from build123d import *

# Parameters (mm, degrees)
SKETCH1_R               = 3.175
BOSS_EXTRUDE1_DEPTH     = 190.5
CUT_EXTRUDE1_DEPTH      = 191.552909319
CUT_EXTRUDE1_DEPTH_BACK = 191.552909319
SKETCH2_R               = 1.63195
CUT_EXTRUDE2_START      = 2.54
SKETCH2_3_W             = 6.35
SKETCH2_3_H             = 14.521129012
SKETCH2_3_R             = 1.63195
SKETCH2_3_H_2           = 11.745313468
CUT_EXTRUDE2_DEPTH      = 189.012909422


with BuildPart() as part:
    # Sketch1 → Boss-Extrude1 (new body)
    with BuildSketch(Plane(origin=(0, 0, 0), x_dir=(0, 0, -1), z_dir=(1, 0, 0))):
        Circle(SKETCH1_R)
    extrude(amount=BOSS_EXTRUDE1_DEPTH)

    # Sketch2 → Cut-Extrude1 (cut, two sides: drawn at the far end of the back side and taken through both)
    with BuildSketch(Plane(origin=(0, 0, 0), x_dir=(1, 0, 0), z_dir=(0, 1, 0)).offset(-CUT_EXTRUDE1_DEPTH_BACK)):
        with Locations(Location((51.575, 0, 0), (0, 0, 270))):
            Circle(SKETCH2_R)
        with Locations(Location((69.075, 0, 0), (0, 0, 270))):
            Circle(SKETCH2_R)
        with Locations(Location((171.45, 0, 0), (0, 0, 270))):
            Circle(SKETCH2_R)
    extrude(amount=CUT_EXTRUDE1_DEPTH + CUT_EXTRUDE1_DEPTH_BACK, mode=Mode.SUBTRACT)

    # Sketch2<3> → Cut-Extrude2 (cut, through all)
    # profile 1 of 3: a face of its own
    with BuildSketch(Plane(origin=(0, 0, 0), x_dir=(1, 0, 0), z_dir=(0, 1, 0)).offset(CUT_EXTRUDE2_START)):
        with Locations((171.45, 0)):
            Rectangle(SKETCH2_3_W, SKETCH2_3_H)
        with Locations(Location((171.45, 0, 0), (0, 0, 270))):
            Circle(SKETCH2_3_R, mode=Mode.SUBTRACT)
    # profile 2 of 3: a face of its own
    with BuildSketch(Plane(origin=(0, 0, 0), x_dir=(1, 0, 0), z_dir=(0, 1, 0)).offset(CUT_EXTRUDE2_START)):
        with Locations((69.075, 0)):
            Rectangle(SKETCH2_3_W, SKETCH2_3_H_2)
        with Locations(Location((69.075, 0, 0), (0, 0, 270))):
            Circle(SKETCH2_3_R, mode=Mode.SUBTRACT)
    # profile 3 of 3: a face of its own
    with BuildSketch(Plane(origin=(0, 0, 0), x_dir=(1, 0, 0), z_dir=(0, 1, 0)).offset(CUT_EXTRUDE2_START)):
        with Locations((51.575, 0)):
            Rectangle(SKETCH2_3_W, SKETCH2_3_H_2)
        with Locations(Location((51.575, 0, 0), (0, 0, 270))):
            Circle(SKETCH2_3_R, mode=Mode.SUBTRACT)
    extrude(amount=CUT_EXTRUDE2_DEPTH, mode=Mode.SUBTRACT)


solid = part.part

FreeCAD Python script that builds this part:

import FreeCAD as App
import Part
import Sketcher
from FreeCAD import Vector
Q = App.Units.Quantity


def add_polygon(sketch, points):
    """Adds a closed chain of lines whose ends are joined by coincident constraints."""
    first, n = sketch.GeometryCount, len(points)
    for a, b in zip(points, points[1:] + points[:1]):
        sketch.addGeometry(Part.LineSegment(App.Vector(*a, 0), App.Vector(*b, 0)), False)
    for i in range(n):
        sketch.addConstraint(Sketcher.Constraint("Coincident", first + i, 2, first + (i + 1) % n, 1))

doc = App.newDocument("Part")
body = doc.addObject("PartDesign::Body", "Body")

sketch1 = doc.addObject("Sketcher::SketchObject", "Sketch")
body.addObject(sketch1)
sketch1.AttachmentSupport = (doc.YZ_Plane, [""])
sketch1.MapMode = "FlatFace"
sketch1.addGeometry(Part.Circle(Vector(0, 0, 0), Vector(0, 0, 1), 3.2), False)
sketch1.addConstraint([
    Sketcher.Constraint("Coincident", 0, 3, -1, 1),
    Sketcher.Constraint("Diameter", 0, Q("0.25 in")),
])
pad1 = doc.addObject("PartDesign::Pad", "Pad")
body.addObject(pad1)
pad1.Profile = sketch1
pad1.Length = Q("7.5 in")

sketch2 = doc.addObject("Sketcher::SketchObject", "Sketch001")
body.addObject(sketch2)
sketch2.AttachmentSupport = (doc.XZ_Plane, [""])
sketch2.MapMode = "FlatFace"
sketch2.addGeometry([
    Part.Circle(Vector(51.6, 0, 0), Vector(0, 0, 1), 1.6),
    Part.Circle(Vector(69.1, 0, 0), Vector(0, 0, 1), 1.6),
    Part.Circle(Vector(171.4, 0, 0), Vector(0, 0, 1), 1.6),
], False)
sketch2.addConstraint([
    Sketcher.Constraint("Equal", 0, 1),
    Sketcher.Constraint("Equal", 1, 2),
    Sketcher.Constraint("PointOnObject", 0, 3, -1),
    Sketcher.Constraint("PointOnObject", 1, 3, -1),
    Sketcher.Constraint("PointOnObject", 2, 3, -1),
    Sketcher.Constraint("Diameter", 0, Q("0.1285 in")),
    Sketcher.Constraint("DistanceX", -1, 1, 2, 3, Q("6.75 in")),
    Sketcher.Constraint("DistanceX", -1, 1, 0, 3, Q("51.575 mm")),
    Sketcher.Constraint("DistanceX", -1, 1, 1, 3, Q("69.075 mm")),
])
pocket1 = doc.addObject("PartDesign::Pocket", "Pocket")
body.addObject(pocket1)
pocket1.Profile = sketch2
pocket1.Type = "ThroughAll"
pocket1.Midplane = True

sketch3 = doc.addObject("Sketcher::SketchObject", "Sketch002")
body.addObject(sketch3)
sketch3.AttachmentSupport = (doc.XZ_Plane, [""])
sketch3.MapMode = "FlatFace"
sketch3.AttachmentOffset = App.Placement(Vector(0, 0, -0.1 * 25.4), App.Rotation())
add_polygon(sketch3, [(168.3, -7.3), (168.3, 7.3), (174.6, 7.3), (174.6, -7.3)])
sketch3.addGeometry(Part.Circle(Vector(171.4, 0, 0), Vector(0, 0, 1), 1.6), False)
add_polygon(sketch3, [(65.9, -5.9), (65.9, 5.9), (72.2, 5.9), (72.2, -5.9)])
sketch3.addGeometry(Part.Circle(Vector(69.1, 0, 0), Vector(0, 0, 1), 1.6), False)
add_polygon(sketch3, [(48.4, -5.9), (48.4, 5.9), (54.8, 5.9), (54.8, -5.9)])
sketch3.addGeometry(Part.Circle(Vector(51.6, 0, 0), Vector(0, 0, 1), 1.6), False)
sketch3.addConstraint([
    Sketcher.Constraint("Vertical", 0),
    Sketcher.Constraint("Horizontal", 1),
    Sketcher.Constraint("Vertical", 2),
    Sketcher.Constraint("Horizontal", 3),
    Sketcher.Constraint("Vertical", 5),
    Sketcher.Constraint("Horizontal", 6),
    Sketcher.Constraint("Vertical", 7),
    Sketcher.Constraint("Horizontal", 8),
    Sketcher.Constraint("Vertical", 10),
    Sketcher.Constraint("Horizontal", 11),
    Sketcher.Constraint("Vertical", 12),
    Sketcher.Constraint("Horizontal", 13),
    Sketcher.Constraint("Equal", 4, 9),
    Sketcher.Constraint("Equal", 9, 14),
    Sketcher.Constraint("PointOnObject", 4, 3, -1),
    Sketcher.Constraint("PointOnObject", 9, 3, -1),
    Sketcher.Constraint("PointOnObject", 14, 3, -1),
    Sketcher.Constraint("Horizontal", 6, 2, 10, 2),
    Sketcher.Constraint("Horizontal", 8, 2, 12, 2),
    Sketcher.Constraint("Equal", 3, 6),
    Sketcher.Constraint("Equal", 8, 11),
    Sketcher.Constraint("Diameter", 4, Q("0.1285 in")),
    Sketcher.Constraint("DistanceX", 1, 1, 1, 2, Q("0.25 in")),
    Sketcher.Constraint("DistanceX", -1, 1, 4, 3, Q("6.75 in")),
    Sketcher.Constraint("DistanceX", -1, 1, 0, 2, Q("6.625 in")),
    Sketcher.Constraint("DistanceX", 5, 2, 9, 3, Q("0.125 in")),
    Sketcher.Constraint("DistanceX", 10, 2, 14, 3, Q("0.125 in")),
    Sketcher.Constraint("DistanceY", 0, 1, 0, 2, Q("14.521129 mm")),
    Sketcher.Constraint("DistanceX", -1, 1, 9, 3, Q("69.075 mm")),
    Sketcher.Constraint("DistanceX", -1, 1, 14, 3, Q("51.575 mm")),
    Sketcher.Constraint("DistanceY", 5, 1, 5, 2, Q("11.745313 mm")),
    Sketcher.Constraint("DistanceY", 3, 2, 5, 2, Q("13.133221 mm")),
    Sketcher.Constraint("DistanceY", -1, 1, 0, 2, Q("7.260565 mm")),
])
pocket2 = doc.addObject("PartDesign::Pocket", "Pocket001")
body.addObject(pocket2)
pocket2.Profile = sketch3
pocket2.Length = 189.012909

doc.recompute()
